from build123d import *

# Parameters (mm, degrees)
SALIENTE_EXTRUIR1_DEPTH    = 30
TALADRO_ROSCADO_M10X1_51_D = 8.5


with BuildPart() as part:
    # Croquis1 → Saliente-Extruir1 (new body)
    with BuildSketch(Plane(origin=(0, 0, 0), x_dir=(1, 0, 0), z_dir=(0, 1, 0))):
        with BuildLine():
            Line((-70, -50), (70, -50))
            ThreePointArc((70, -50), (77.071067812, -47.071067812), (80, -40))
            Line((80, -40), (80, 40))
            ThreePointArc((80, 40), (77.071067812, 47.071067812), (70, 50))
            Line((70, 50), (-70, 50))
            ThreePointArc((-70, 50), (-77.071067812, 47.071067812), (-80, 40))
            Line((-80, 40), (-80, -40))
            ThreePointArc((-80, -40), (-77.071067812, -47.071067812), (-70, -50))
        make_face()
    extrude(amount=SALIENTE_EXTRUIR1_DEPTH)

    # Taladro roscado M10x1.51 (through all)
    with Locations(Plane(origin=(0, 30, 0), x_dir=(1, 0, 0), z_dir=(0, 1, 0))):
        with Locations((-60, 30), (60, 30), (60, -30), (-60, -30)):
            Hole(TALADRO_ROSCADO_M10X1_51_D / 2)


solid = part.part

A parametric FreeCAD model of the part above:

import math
import FreeCAD as App
import Part
import Sketcher
from FreeCAD import Vector
Q = App.Units.Quantity

doc = App.newDocument("Part")
body = doc.addObject("PartDesign::Body", "Body")

# Sketch on XZ plane
sketch1 = body.newObject("Sketcher::SketchObject", "Sketch")
sketch1.AttachmentSupport = (doc.getObject("XZ_Plane"), [""])
sketch1.MapMode = "FlatFace"
sketch1.addGeometry([
    Part.LineSegment(Vector(-70, 50, 0), Vector(70, 50, 0)),  # 0
    Part.ArcOfCircle(Part.Circle(Vector(70, 40, 0), Vector(0, 0, 1), 10), math.radians(0), math.radians(90)),  # 1
    Part.LineSegment(Vector(80, 40, 0), Vector(80, -40, 0)),  # 2
    Part.ArcOfCircle(Part.Circle(Vector(70, -40, 0), Vector(0, 0, 1), 10), math.radians(-90), math.radians(0)),  # 3
    Part.LineSegment(Vector(70, -50, 0), Vector(-70, -50, 0)),  # 4
    Part.ArcOfCircle(Part.Circle(Vector(-70, -40, 0), Vector(0, 0, 1), 10), math.radians(180), math.radians(270)),  # 5
    Part.LineSegment(Vector(-80, -40, 0), Vector(-80, 40, 0)),  # 6
    Part.ArcOfCircle(Part.Circle(Vector(-70, 40, 0), Vector(0, 0, 1), 10), math.radians(90), math.radians(180)),  # 7
], False)
sketch1.addConstraint([
    Sketcher.Constraint("Tangent", 0, 2, 1, 2),
    Sketcher.Constraint("Tangent", 1, 1, 2, 1),
    Sketcher.Constraint("Tangent", 2, 2, 3, 2),
    Sketcher.Constraint("Tangent", 3, 1, 4, 1),
    Sketcher.Constraint("Tangent", 4, 2, 5, 2),
    Sketcher.Constraint("Tangent", 5, 1, 6, 1),
    Sketcher.Constraint("Tangent", 6, 2, 7, 2),
    Sketcher.Constraint("Tangent", 7, 1, 0, 1),
    Sketcher.Constraint("Horizontal", 0),
    Sketcher.Constraint("Vertical", 2),
    Sketcher.Constraint("Horizontal", 4),
    Sketcher.Constraint("Vertical", 6),
    Sketcher.Constraint("Equal", 1, 3),
    Sketcher.Constraint("Equal", 3, 5),
    Sketcher.Constraint("Equal", 5, 7),
    Sketcher.Constraint("Symmetric", 1, 3, 5, 3, -1, 1),
    Sketcher.Constraint("Radius", 1, Q("10 mm")),
    Sketcher.Constraint("DistanceX", 0, 1, 0, 2, Q("140 mm")),
    Sketcher.Constraint("DistanceY", 2, 2, 2, 1, Q("80 mm")),
])
pad1 = body.newObject("PartDesign::Pad", "Pad")
pad1.Profile = sketch1
pad1.Length = 30
pad1.Reversed = True

# Sketch on XZ plane
sketch2 = body.newObject("Sketcher::SketchObject", "Sketch001")
sketch2.AttachmentSupport = (doc.getObject("XZ_Plane"), [""])
sketch2.MapMode = "FlatFace"
sketch2.AttachmentOffset = App.Placement(Vector(0, 0, -30), App.Rotation())
sketch2.addGeometry([
    Part.Circle(Vector(-60, -30, 0), Vector(0, 0, 1), 4.2),
    Part.Circle(Vector(60, -30, 0), Vector(0, 0, 1), 4.2),
    Part.Circle(Vector(60, 30, 0), Vector(0, 0, 1), 4.2),
    Part.Circle(Vector(-60, 30, 0), Vector(0, 0, 1), 4.2),
], False)
sketch2.addConstraint([
    Sketcher.Constraint("Equal", 0, 1),
    Sketcher.Constraint("Equal", 1, 2),
    Sketcher.Constraint("Equal", 2, 3),
    Sketcher.Constraint("Symmetric", 0, 3, 2, 3, -1, 1),
    Sketcher.Constraint("Symmetric", 1, 3, 3, 3, -1, 1),
    Sketcher.Constraint("Symmetric", 0, 3, 1, 3, -2),
    Sketcher.Constraint("Diameter", 0, Q("8.5 mm")),
    Sketcher.Constraint("DistanceX", 0, 3, -1, 1, Q("60 mm")),
    Sketcher.Constraint("DistanceY", 0, 3, -1, 1, Q("30 mm")),
])
doc.recompute()
hole = body.newObject("PartDesign::Hole", "Hole")
hole.Profile = sketch2
hole.ThreadType = "None"
hole.Diameter = 8.5
hole.DepthType = "ThroughAll"
hole.Reversed = True

doc.recompute()
